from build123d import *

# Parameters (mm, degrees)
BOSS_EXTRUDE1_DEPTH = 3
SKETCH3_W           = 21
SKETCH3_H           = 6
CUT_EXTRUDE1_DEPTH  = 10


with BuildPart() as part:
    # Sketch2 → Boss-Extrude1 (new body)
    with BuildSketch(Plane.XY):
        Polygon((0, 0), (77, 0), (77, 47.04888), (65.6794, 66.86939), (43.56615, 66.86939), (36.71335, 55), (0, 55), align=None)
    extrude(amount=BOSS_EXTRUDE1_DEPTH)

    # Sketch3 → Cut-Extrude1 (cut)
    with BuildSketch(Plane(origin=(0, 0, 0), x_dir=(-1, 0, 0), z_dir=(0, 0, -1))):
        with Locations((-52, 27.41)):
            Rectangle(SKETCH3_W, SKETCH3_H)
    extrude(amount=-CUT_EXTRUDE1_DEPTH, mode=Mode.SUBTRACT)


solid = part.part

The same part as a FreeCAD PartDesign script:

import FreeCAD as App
import Part
import Sketcher

V = App.Vector
Q = App.Units.Quantity


def add_polygon(sketch, points):
    """Adds a closed chain of lines whose ends are joined by coincident constraints."""
    first, n = sketch.GeometryCount, len(points)
    for a, b in zip(points, points[1:] + points[:1]):
        sketch.addGeometry(Part.LineSegment(App.Vector(*a, 0), App.Vector(*b, 0)), False)
    for i in range(n):
        sketch.addConstraint(Sketcher.Constraint("Coincident", first + i, 2, first + (i + 1) % n, 1))

doc = App.newDocument("Part")
body = doc.addObject("PartDesign::Body", "Body")

# Sketch on XY plane
sketch1 = body.newObject("Sketcher::SketchObject", "Sketch")
sketch1.AttachmentSupport = (doc.getObject("XY_Plane"), [""])
sketch1.MapMode = "FlatFace"
add_polygon(sketch1, [(0, 0), (77, 0), (77, 47), (66, 67), (44, 67), (37, 55), (0, 55)])  # lines 0-6
sketch1.addConstraint([
    Sketcher.Constraint("Horizontal", 0),
    Sketcher.Constraint("Vertical", 1),
    Sketcher.Constraint("Horizontal", 3),
    Sketcher.Constraint("Horizontal", 5),
    Sketcher.Constraint("Vertical", 6),
    Sketcher.Constraint("Coincident", 6, 2, -1, 1),
    Sketcher.Constraint("DistanceX", 0, 1, 0, 2, 77.0),
    Sketcher.Constraint("DistanceY", 6, 2, 6, 1, 55.0),
    Sketcher.Constraint("Angle", 4, Q("-120.000016 deg")),
    Sketcher.Constraint("DistanceX", 3, 2, 3, 1, 22.11325),
    Sketcher.Constraint("DistanceX", 5, 2, 5, 1, 36.71335),
    Sketcher.Constraint("DistanceY", 1, 1, 1, 2, 47.04888),
    Sketcher.Constraint("DistanceX", -1, 1, 2, 2, 65.6794),
])
pad1 = body.newObject("PartDesign::Pad", "Pad")
pad1.Profile = sketch1
pad1.Length = 3

# Sketch on XY plane
sketch2 = body.newObject("Sketcher::SketchObject", "Sketch001")
sketch2.AttachmentSupport = (doc.getObject("XY_Plane"), [""])
sketch2.MapMode = "FlatFace"
add_polygon(sketch2, [(62, 30), (62, 24), (42, 24), (42, 30)])  # lines 0-3
sketch2.addConstraint([
    Sketcher.Constraint("Vertical", 0),
    Sketcher.Constraint("Horizontal", 1),
    Sketcher.Constraint("Vertical", 2),
    Sketcher.Constraint("Horizontal", 3),
    Sketcher.Constraint("DistanceX", 1, 2, 1, 1, 21.0),
    Sketcher.Constraint("DistanceY", 0, 2, 0, 1, 6.0),
    Sketcher.Constraint("DistanceX", -1, 1, 0, 2, 62.5),
    Sketcher.Constraint("DistanceY", -1, 1, 0, 2, 24.41),
])
pocket1 = body.newObject("PartDesign::Pocket", "Pocket")
pocket1.Profile = sketch2
pocket1.Length = 10
pocket1.Reversed = True

doc.recompute()
